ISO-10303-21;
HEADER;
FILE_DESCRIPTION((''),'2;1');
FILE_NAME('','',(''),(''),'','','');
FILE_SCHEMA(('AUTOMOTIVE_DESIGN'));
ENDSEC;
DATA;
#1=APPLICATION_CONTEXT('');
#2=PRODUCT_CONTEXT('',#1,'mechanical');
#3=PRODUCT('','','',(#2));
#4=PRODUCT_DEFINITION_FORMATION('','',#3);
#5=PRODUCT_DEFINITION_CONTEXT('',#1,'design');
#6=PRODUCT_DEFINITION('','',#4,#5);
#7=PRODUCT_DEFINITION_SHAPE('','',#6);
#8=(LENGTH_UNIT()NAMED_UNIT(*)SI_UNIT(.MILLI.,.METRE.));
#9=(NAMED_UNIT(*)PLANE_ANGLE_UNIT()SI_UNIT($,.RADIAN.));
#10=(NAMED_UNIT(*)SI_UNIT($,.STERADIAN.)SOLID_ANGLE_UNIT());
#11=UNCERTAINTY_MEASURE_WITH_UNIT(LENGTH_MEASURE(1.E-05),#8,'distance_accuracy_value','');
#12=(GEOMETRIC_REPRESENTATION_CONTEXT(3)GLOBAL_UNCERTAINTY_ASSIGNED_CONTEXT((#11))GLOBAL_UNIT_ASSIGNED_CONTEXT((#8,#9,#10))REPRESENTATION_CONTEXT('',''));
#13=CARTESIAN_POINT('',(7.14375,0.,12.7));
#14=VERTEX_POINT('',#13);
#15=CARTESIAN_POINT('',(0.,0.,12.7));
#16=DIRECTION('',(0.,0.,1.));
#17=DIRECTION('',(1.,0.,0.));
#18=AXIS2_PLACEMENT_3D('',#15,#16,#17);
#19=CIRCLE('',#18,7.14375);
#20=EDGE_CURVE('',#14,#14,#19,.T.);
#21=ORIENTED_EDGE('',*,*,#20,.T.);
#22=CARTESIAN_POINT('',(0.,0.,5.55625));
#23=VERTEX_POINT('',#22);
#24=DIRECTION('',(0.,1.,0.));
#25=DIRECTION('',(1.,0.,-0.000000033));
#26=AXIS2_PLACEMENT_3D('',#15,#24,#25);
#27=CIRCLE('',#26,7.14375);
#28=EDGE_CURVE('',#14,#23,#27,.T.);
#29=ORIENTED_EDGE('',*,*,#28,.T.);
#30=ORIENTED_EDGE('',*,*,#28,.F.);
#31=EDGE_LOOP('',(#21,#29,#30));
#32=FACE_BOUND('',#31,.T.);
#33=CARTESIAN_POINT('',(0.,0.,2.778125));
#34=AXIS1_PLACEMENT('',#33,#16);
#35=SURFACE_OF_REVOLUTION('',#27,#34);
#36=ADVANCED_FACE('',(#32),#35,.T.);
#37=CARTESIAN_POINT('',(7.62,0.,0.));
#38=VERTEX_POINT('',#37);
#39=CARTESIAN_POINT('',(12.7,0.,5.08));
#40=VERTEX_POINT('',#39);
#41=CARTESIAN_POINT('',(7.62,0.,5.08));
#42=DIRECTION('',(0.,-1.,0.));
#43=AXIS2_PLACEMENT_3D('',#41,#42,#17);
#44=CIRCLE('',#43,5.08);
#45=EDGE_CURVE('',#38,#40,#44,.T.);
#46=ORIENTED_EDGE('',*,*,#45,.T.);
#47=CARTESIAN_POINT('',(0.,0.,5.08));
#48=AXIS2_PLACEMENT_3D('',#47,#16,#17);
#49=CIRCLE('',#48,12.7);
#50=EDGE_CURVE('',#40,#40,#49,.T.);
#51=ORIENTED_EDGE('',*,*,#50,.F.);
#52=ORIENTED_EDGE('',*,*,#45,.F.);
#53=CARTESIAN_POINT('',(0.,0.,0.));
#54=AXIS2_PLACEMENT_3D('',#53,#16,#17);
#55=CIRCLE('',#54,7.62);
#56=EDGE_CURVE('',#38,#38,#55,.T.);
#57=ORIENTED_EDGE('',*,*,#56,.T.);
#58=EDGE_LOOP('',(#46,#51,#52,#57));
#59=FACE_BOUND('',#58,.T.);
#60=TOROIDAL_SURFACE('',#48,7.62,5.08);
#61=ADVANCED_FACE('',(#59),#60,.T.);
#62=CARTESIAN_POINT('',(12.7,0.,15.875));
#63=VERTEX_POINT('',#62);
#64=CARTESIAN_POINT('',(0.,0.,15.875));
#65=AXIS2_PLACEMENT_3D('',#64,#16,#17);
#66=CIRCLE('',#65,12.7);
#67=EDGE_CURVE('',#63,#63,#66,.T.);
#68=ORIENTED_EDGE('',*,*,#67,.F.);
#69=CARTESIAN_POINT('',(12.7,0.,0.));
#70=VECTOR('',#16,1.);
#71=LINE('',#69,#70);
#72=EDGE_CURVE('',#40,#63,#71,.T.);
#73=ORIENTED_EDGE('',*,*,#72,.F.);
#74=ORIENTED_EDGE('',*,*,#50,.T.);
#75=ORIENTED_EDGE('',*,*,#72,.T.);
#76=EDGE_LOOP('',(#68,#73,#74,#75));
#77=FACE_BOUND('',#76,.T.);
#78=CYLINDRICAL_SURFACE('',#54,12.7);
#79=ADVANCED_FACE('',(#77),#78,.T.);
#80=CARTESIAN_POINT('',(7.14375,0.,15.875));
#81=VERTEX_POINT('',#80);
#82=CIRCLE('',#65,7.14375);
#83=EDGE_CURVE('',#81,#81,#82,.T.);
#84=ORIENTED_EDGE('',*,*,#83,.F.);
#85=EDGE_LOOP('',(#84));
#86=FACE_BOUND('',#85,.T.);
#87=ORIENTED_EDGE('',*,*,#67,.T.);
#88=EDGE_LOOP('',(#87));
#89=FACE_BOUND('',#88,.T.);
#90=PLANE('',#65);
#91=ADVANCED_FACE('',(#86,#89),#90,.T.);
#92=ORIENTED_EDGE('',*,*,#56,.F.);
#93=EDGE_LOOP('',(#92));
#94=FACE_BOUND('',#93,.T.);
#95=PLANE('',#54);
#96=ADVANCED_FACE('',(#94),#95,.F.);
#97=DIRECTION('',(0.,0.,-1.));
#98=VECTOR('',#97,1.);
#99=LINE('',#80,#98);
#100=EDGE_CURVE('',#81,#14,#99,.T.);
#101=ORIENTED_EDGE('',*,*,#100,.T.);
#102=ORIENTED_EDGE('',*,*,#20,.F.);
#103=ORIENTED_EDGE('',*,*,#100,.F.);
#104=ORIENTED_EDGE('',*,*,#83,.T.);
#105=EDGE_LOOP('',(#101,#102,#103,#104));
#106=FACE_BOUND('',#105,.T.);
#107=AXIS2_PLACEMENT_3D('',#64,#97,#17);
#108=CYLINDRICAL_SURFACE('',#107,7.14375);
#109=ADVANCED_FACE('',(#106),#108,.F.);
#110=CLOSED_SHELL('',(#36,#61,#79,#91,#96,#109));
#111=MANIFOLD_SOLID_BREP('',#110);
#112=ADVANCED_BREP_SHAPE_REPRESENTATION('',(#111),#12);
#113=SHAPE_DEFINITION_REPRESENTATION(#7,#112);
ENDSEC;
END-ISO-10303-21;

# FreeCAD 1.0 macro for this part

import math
import FreeCAD as App
import Part
import Sketcher

V = App.Vector
Q = App.Units.Quantity


def edges_at(feature, points):
    """Names of the edges that pass closest to the given points."""
    edges = feature.Shape.Edges
    near = lambda p: min(range(len(edges)), key=lambda i: edges[i].distToShape(Part.Vertex(*p))[0])
    return sorted({f"Edge{near(p) + 1}" for p in points})

doc = App.newDocument("Part")
body = doc.addObject("PartDesign::Body", "Body")

# Sketch on XZ plane
sketch1 = body.newObject("Sketcher::SketchObject", "Sketch")
sketch1.AttachmentSupport = (doc.getObject("XZ_Plane"), [""])
sketch1.MapMode = "FlatFace"
sketch1.addGeometry([
    Part.LineSegment(V(0, 5.6, 0), V(0, 0, 0)),  # 0
    Part.LineSegment(V(0, 0, 0), V(12.7, 0, 0)),  # 1
    Part.LineSegment(V(12.7, 0, 0), V(12.7, 15.9, 0)),  # 2
    Part.LineSegment(V(12.7, 15.9, 0), V(7.1, 15.9, 0)),  # 3
    Part.LineSegment(V(7.1, 15.9, 0), V(7.1, 12.7, 0)),  # 4
    Part.ArcOfCircle(Part.Circle(V(0, 12.7, 0), V(0, 0, 1), 7.1), math.radians(-90), math.radians(0)),  # 5
], False)
sketch1.addConstraint([
    Sketcher.Constraint("Coincident", 0, 2, 1, 1),
    Sketcher.Constraint("Coincident", 1, 2, 2, 1),
    Sketcher.Constraint("Coincident", 2, 2, 3, 1),
    Sketcher.Constraint("Coincident", 3, 2, 4, 1),
    Sketcher.Constraint("Tangent", 4, 2, 5, 2),
    Sketcher.Constraint("Coincident", 5, 1, 0, 1),
    Sketcher.Constraint("Vertical", 0),
    Sketcher.Constraint("Horizontal", 1),
    Sketcher.Constraint("Vertical", 2),
    Sketcher.Constraint("Horizontal", 3),
    Sketcher.Constraint("Vertical", 4),
    Sketcher.Constraint("Coincident", 0, 2, -1, 1),
    Sketcher.Constraint("PointOnObject", 5, 3, -2),
    Sketcher.Constraint("Equal", 3, 0),
    Sketcher.Constraint("DistanceX", 1, 1, 1, 2, Q("0.5 in")),
    Sketcher.Constraint("Radius", 5, Q("0.28125 in")),
    Sketcher.Constraint("DistanceY", 2, 1, 2, 2, Q("0.625 in")),
])
revolution = body.newObject("PartDesign::Revolution", "Revolution")
revolution.Profile = sketch1
revolution.ReferenceAxis = (sketch1, ["V_Axis"])
revolution.Angle = 360
doc.recompute()

fillet = body.newObject("PartDesign::Fillet", "Fillet")
fillet.Base = (revolution, edges_at(revolution, [(-12.7, 0, 0)]))
fillet.Radius = Q("0.2 in")

doc.recompute()
